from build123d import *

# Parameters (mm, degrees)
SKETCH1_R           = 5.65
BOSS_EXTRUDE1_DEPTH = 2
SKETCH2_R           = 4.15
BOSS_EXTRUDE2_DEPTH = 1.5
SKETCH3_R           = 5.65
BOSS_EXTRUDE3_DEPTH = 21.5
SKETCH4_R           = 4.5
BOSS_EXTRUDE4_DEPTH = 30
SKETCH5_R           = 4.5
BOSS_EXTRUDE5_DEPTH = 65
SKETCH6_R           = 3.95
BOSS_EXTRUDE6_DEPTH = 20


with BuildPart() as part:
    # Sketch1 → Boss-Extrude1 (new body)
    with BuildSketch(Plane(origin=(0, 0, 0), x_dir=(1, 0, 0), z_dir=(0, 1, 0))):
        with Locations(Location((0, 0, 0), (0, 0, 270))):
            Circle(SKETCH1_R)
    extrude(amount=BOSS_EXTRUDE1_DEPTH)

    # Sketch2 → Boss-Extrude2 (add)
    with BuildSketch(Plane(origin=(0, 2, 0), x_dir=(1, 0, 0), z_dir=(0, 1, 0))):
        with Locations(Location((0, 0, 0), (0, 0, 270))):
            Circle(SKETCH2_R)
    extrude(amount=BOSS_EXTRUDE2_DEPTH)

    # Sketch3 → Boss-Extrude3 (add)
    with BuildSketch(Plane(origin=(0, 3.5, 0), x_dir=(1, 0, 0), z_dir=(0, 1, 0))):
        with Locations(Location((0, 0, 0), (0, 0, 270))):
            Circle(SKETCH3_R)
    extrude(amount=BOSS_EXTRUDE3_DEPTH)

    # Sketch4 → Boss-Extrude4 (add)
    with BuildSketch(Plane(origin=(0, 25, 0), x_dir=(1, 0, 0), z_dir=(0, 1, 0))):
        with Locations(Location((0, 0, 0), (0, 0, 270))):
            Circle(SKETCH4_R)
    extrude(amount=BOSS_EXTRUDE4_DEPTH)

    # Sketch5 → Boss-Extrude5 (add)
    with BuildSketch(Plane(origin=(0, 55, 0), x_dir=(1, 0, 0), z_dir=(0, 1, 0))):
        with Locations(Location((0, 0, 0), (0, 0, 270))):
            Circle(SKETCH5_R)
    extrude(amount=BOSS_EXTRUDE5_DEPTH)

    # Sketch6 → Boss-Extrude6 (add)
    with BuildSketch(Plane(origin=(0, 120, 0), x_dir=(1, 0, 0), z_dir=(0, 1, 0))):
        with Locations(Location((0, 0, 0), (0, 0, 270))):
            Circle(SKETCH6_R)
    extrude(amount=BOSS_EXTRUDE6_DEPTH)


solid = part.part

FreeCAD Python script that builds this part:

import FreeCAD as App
import Part
import Sketcher

V = App.Vector

doc = App.newDocument("Part")
body = doc.addObject("PartDesign::Body", "Body")

sketch1 = body.newObject("Sketcher::SketchObject", "Sketch")
sketch1.AttachmentSupport = (doc.getObject("XZ_Plane"), [""])
sketch1.MapMode = "FlatFace"
sketch1.addGeometry(Part.Circle(V(0, 0, 0), V(0, 0, 1), 6), False)
sketch1.addConstraint([
    Sketcher.Constraint("Coincident", 0, 3, -1, 1),
    Sketcher.Constraint("Diameter", 0, 11.3),
])
pad1 = body.newObject("PartDesign::Pad", "Pad")
pad1.Profile = sketch1
pad1.Length = 2
pad1.Reversed = True

sketch2 = body.newObject("Sketcher::SketchObject", "Sketch001")
sketch2.AttachmentSupport = (doc.getObject("XZ_Plane"), [""])
sketch2.MapMode = "FlatFace"
sketch2.AttachmentOffset = App.Placement(V(0, 0, -2), App.Rotation())
sketch2.addGeometry(Part.Circle(V(0, 0, 0), V(0, 0, 1), 4.2), False)
sketch2.addConstraint([
    Sketcher.Constraint("Coincident", 0, 3, -1, 1),
    Sketcher.Constraint("Diameter", 0, 8.3),
])
pad2 = body.newObject("PartDesign::Pad", "Pad001")
pad2.Profile = sketch2
pad2.Length = 1.5
pad2.Reversed = True

sketch3 = body.newObject("Sketcher::SketchObject", "Sketch002")
sketch3.AttachmentSupport = (doc.getObject("XZ_Plane"), [""])
sketch3.MapMode = "FlatFace"
sketch3.AttachmentOffset = App.Placement(V(0, 0, -3.5), App.Rotation())
sketch3.addGeometry(Part.Circle(V(0, 0, 0), V(0, 0, 1), 6), False)
sketch3.addConstraint([
    Sketcher.Constraint("Coincident", 0, 3, -1, 1),
    Sketcher.Constraint("Diameter", 0, 11.3),
])
pad3 = body.newObject("PartDesign::Pad", "Pad002")
pad3.Profile = sketch3
pad3.Length = 21.5
pad3.Reversed = True

sketch4 = body.newObject("Sketcher::SketchObject", "Sketch003")
sketch4.AttachmentSupport = (doc.getObject("XZ_Plane"), [""])
sketch4.MapMode = "FlatFace"
sketch4.AttachmentOffset = App.Placement(V(0, 0, -25), App.Rotation())
sketch4.addGeometry(Part.Circle(V(0, 0, 0), V(0, 0, 1), 4.5), False)
sketch4.addConstraint([
    Sketcher.Constraint("Coincident", 0, 3, -1, 1),
    Sketcher.Constraint("Diameter", 0, 9.0),
])
pad4 = body.newObject("PartDesign::Pad", "Pad003")
pad4.Profile = sketch4
pad4.Length = 30
pad4.Reversed = True

sketch5 = body.newObject("Sketcher::SketchObject", "Sketch004")
sketch5.AttachmentSupport = (doc.getObject("XZ_Plane"), [""])
sketch5.MapMode = "FlatFace"
sketch5.AttachmentOffset = App.Placement(V(0, 0, -55), App.Rotation())
sketch5.addGeometry(Part.Circle(V(0, 0, 0), V(0, 0, 1), 4.5), False)
sketch5.addConstraint([
    Sketcher.Constraint("Coincident", 0, 3, -1, 1),
    Sketcher.Constraint("Diameter", 0, 9.0),
])
pad5 = body.newObject("PartDesign::Pad", "Pad004")
pad5.Profile = sketch5
pad5.Length = 65
pad5.Reversed = True

sketch6 = body.newObject("Sketcher::SketchObject", "Sketch005")
sketch6.AttachmentSupport = (doc.getObject("XZ_Plane"), [""])
sketch6.MapMode = "FlatFace"
sketch6.AttachmentOffset = App.Placement(V(0, 0, -120), App.Rotation())
sketch6.addGeometry(Part.Circle(V(0, 0, 0), V(0, 0, 1), 4), False)
sketch6.addConstraint([
    Sketcher.Constraint("Coincident", 0, 3, -1, 1),
    Sketcher.Constraint("Diameter", 0, 7.9),
])
pad6 = body.newObject("PartDesign::Pad", "Pad005")
pad6.Profile = sketch6
pad6.Length = 20
pad6.Reversed = True

doc.recompute()
